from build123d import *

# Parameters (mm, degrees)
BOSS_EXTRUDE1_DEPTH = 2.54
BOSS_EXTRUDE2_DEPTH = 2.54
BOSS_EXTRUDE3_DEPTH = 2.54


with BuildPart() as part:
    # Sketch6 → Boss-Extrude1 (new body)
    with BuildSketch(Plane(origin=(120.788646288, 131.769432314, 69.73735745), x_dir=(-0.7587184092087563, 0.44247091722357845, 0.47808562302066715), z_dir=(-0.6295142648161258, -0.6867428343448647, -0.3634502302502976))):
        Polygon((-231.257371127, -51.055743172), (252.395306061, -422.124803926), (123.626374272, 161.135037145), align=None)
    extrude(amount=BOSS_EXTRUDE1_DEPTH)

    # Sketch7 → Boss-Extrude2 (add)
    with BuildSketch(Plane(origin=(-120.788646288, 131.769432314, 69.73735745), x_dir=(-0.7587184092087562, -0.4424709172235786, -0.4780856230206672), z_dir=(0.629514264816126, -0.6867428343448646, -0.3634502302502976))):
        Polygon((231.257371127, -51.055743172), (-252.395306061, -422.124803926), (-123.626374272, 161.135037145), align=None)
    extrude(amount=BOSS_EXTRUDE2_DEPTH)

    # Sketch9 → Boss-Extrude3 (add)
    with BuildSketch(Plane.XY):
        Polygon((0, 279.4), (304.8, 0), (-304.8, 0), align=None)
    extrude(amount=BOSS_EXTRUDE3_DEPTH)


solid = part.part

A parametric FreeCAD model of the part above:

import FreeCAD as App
import Part
import Sketcher
Q = App.Units.Quantity


def add_polygon(sketch, points):
    """Adds a closed chain of lines whose ends are joined by coincident constraints."""
    first, n = sketch.GeometryCount, len(points)
    for a, b in zip(points, points[1:] + points[:1]):
        sketch.addGeometry(Part.LineSegment(App.Vector(*a, 0), App.Vector(*b, 0)), False)
    for i in range(n):
        sketch.addConstraint(Sketcher.Constraint("Coincident", first + i, 2, first + (i + 1) % n, 1))

doc = App.newDocument("Part")
body = doc.addObject("PartDesign::Body", "Body")

# Sketch on an angled plane
sketch1 = doc.addObject("Sketcher::SketchObject", "Sketch")
body.addObject(sketch1)
sketch1.Placement = App.Placement(App.Vector(120.788646, 131.769432, 69.737357), App.Rotation(App.Vector(-0.758718409, 0.442470917, 0.478085623), App.Vector(-0.167505719, 0.5767181, -0.799586185), App.Vector(-0.629514265, -0.686742834, -0.36345023), "ZXY"))
add_polygon(sketch1, [(-231.257371, -51.055743), (252.395306, -422.124804), (123.626374, 161.135037)])  # lines 0-2
sketch1.addConstraint([
    Sketcher.Constraint("Distance", 0, Q("24 in")),
    Sketcher.Constraint("Distance", 1, Q("597.305181 mm")),
    Sketcher.Constraint("DistanceX", 2, 2, -1, 1, Q("231.257371 mm")),
    Sketcher.Constraint("DistanceX", 1, 2, 0, 2, Q("128.768932 mm")),
    Sketcher.Constraint("DistanceY", 2, 2, 1, 2, Q("212.19078 mm")),
    Sketcher.Constraint("DistanceY", 0, 2, -1, 1, Q("422.124804 mm")),
])
pad1 = doc.addObject("PartDesign::Pad", "Pad")
body.addObject(pad1)
pad1.Profile = sketch1
pad1.Length = Q("0.1 in")

# Sketch on an angled plane
sketch2 = doc.addObject("Sketcher::SketchObject", "Sketch001")
body.addObject(sketch2)
sketch2.Placement = App.Placement(App.Vector(-120.788646, 131.769432, 69.737357), App.Rotation(App.Vector(-0.758718409, -0.442470917, -0.478085623), App.Vector(0.167505719, 0.5767181, -0.799586185), App.Vector(0.629514265, -0.686742834, -0.36345023), "ZXY"))
add_polygon(sketch2, [(-252.395306, -422.124804), (231.257371, -51.055743), (-123.626374, 161.135037)])  # lines 0-2
sketch2.addConstraint([
    Sketcher.Constraint("Distance", 0, Q("24 in")),
    Sketcher.Constraint("Distance", 2, Q("597.305181 mm")),
    Sketcher.Constraint("DistanceX", -1, 1, 0, 2, Q("231.257371 mm")),
    Sketcher.Constraint("DistanceY", 0, 2, 1, 2, Q("212.19078 mm")),
    Sketcher.Constraint("DistanceX", 2, 2, 1, 2, Q("128.768932 mm")),
    Sketcher.Constraint("DistanceY", 0, 2, -1, 1, Q("51.055743 mm")),
])
pad2 = doc.addObject("PartDesign::Pad", "Pad001")
body.addObject(pad2)
pad2.Profile = sketch2
pad2.Length = Q("0.1 in")

# Sketch on XY plane
sketch3 = doc.addObject("Sketcher::SketchObject", "Sketch002")
body.addObject(sketch3)
sketch3.AttachmentSupport = (doc.XY_Plane, [""])
sketch3.MapMode = "FlatFace"
add_polygon(sketch3, [(304.8, 0), (0, 279.4), (-304.8, 0)])  # lines 0-2
sketch3.addConstraint([
    Sketcher.Constraint("Horizontal", 2),
    Sketcher.Constraint("Symmetric", 1, 2, 2, 2, -1, 1),
    Sketcher.Constraint("PointOnObject", 0, 2, -2),
    Sketcher.Constraint("DistanceX", 2, 1, 2, 2, Q("24 in")),
    Sketcher.Constraint("DistanceY", -1, 1, 0, 2, Q("11 in")),
])
pad3 = doc.addObject("PartDesign::Pad", "Pad002")
body.addObject(pad3)
pad3.Profile = sketch3
pad3.Length = Q("0.1 in")

doc.recompute()
